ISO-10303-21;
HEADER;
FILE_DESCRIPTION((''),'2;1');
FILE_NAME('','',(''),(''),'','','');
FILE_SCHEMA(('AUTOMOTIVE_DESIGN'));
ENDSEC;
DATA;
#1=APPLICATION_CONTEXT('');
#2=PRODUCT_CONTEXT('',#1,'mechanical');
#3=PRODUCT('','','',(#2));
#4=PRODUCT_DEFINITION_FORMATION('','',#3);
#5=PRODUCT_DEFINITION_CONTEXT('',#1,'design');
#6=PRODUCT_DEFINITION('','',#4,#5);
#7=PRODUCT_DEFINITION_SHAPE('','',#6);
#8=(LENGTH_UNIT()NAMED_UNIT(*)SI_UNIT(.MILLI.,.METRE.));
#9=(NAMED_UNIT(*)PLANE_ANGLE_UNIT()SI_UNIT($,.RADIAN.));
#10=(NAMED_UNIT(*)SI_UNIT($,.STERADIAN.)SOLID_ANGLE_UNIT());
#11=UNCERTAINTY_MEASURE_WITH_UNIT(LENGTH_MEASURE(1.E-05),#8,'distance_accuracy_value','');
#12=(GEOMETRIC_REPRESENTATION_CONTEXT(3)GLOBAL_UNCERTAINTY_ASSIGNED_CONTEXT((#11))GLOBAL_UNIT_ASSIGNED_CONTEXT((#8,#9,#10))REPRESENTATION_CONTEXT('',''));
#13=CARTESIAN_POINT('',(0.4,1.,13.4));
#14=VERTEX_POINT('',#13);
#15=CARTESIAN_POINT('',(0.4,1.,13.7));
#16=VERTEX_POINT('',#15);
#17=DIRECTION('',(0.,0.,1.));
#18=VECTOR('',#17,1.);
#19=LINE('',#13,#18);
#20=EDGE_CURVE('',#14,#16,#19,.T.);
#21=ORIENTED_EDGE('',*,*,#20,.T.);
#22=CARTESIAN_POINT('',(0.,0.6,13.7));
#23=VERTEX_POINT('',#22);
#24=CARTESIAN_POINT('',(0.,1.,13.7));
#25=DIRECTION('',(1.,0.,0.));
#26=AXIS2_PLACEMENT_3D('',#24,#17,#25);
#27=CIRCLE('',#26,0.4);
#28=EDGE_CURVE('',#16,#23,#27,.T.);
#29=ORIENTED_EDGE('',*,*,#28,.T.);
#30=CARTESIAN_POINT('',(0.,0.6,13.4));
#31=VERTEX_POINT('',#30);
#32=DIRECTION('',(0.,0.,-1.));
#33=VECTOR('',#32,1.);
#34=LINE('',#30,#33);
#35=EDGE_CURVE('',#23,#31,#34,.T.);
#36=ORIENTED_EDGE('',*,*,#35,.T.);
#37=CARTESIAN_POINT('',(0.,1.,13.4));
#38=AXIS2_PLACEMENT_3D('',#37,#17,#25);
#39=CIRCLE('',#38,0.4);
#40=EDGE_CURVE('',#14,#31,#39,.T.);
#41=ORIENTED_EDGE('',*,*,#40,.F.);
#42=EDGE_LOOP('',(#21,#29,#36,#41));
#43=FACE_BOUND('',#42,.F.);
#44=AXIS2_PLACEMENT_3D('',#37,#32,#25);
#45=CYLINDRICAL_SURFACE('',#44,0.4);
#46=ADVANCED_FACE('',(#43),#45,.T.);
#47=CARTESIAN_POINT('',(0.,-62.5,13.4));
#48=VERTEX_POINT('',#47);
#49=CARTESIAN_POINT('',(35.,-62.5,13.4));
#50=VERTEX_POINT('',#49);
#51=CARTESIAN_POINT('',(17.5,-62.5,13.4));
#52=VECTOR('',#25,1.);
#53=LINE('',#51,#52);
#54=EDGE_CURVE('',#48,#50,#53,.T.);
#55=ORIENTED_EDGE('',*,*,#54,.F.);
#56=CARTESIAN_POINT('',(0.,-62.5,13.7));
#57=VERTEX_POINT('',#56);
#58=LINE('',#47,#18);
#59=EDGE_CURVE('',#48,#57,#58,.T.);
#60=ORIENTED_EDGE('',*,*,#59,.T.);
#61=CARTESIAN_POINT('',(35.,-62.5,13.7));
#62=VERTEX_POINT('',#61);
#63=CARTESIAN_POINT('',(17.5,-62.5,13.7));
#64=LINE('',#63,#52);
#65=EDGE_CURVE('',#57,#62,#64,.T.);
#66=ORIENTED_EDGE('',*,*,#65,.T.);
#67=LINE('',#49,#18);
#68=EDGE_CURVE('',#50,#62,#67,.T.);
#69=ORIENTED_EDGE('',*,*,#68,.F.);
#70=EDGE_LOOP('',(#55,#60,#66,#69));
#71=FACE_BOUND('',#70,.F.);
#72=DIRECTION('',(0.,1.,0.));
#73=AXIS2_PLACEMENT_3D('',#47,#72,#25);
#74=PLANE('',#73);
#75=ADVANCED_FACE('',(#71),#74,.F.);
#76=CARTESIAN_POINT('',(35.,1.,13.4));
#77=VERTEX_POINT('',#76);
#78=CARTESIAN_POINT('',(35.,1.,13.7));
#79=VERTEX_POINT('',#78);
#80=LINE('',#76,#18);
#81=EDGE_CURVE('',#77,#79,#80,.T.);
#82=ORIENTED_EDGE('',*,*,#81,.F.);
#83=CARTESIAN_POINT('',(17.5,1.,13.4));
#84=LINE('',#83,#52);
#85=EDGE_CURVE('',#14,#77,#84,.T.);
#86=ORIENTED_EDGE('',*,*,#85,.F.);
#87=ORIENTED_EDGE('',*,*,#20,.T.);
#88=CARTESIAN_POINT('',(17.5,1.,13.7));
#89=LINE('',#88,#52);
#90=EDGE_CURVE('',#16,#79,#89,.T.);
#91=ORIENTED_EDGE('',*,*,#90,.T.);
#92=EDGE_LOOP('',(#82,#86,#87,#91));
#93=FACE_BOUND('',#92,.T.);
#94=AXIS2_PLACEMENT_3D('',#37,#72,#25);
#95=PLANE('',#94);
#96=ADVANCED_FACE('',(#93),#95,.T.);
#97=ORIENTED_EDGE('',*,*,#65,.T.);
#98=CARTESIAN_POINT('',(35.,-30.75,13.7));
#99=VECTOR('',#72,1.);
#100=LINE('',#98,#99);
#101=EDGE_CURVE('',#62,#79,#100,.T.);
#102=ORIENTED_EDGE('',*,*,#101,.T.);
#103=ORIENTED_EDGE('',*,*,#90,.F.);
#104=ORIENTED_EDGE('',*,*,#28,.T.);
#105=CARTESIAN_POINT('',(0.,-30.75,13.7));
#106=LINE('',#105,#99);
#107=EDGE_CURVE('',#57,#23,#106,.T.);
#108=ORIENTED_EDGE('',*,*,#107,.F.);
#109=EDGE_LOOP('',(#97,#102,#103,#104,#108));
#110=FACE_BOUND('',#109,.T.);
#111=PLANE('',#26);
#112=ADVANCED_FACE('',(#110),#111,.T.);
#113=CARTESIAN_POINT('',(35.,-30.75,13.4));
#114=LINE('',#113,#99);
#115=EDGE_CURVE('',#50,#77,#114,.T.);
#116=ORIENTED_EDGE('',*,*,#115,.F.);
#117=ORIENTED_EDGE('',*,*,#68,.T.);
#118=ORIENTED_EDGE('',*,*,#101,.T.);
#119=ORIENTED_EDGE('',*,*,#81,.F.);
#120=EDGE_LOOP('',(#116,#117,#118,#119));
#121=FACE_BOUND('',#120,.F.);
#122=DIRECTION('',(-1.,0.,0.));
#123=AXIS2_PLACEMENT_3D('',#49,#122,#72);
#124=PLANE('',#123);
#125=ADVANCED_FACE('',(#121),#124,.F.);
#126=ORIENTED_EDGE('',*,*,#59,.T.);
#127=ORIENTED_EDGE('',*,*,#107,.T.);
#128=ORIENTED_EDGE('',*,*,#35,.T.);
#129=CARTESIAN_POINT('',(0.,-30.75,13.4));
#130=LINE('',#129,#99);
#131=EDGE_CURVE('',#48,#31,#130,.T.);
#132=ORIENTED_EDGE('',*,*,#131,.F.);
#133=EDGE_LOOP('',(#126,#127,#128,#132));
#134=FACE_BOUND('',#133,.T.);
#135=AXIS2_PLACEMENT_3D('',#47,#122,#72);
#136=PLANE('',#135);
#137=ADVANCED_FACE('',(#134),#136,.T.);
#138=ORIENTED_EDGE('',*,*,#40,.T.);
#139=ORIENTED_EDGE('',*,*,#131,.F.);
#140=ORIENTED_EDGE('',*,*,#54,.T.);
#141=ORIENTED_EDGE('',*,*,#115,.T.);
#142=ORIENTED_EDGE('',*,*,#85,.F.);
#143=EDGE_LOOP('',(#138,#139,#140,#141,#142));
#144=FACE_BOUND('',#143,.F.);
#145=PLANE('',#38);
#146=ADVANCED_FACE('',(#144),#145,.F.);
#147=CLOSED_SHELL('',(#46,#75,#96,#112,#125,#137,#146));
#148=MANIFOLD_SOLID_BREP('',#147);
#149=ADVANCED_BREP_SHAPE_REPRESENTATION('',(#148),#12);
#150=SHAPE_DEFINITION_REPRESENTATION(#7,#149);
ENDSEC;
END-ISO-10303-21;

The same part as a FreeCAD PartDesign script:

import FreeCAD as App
import Part
import Sketcher
Q = App.Units.Quantity


def add_polygon(sketch, points):
    """Adds a closed chain of lines whose ends are joined by coincident constraints."""
    first, n = sketch.GeometryCount, len(points)
    for a, b in zip(points, points[1:] + points[:1]):
        sketch.addGeometry(Part.LineSegment(App.Vector(*a, 0), App.Vector(*b, 0)), False)
    for i in range(n):
        sketch.addConstraint(Sketcher.Constraint("Coincident", first + i, 2, first + (i + 1) % n, 1))

doc = App.newDocument("Part")
body = doc.addObject("PartDesign::Body", "Body")

# Sketch on XY plane
sketch1 = doc.addObject("Sketcher::SketchObject", "Sketch")
body.addObject(sketch1)
sketch1.AttachmentSupport = (doc.XY_Plane, [""])
sketch1.MapMode = "FlatFace"
sketch1.AttachmentOffset = App.Placement(App.Vector(0, 0, 11.4), App.Rotation())
sketch1.addGeometry(Part.Circle(App.Vector(0, 1, 0), App.Vector(0, 0, 1), 0.4), False)
sketch1.addConstraint([
    Sketcher.Constraint("PointOnObject", 0, 3, -2),
    Sketcher.Constraint("Diameter", 0, Q("0.8 mm")),
    Sketcher.Constraint("DistanceY", -1, 1, 0, 3, Q("1 mm")),
])
pad1 = doc.addObject("PartDesign::Pad", "Pad")
body.addObject(pad1)
pad1.Profile = sketch1
pad1.Length = 0.3
body2 = doc.addObject("PartDesign::Body", "Body001")

# Sketch on XY plane
sketch2 = doc.addObject("Sketcher::SketchObject", "Sketch001")
body2.addObject(sketch2)
sketch2.AttachmentSupport = (doc.getObject("XY_Plane001"), [""])
sketch2.MapMode = "FlatFace"
sketch2.AttachmentOffset = App.Placement(App.Vector(0, 0, 11.4), App.Rotation())
add_polygon(sketch2, [(0, 1), (0, -62.5), (35, -62.5), (35, 1)])  # lines 0-3
sketch2.addConstraint([
    Sketcher.Constraint("Vertical", 0),
    Sketcher.Constraint("Horizontal", 1),
    Sketcher.Constraint("Vertical", 2),
    Sketcher.Constraint("Horizontal", 3),
    Sketcher.Constraint("PointOnObject", 0, 2, -2),
    Sketcher.Constraint("DistanceX", 1, 1, 1, 2, Q("35 mm")),
    Sketcher.Constraint("DistanceY", 0, 2, 0, 1, Q("63.5 mm")),
    Sketcher.Constraint("DistanceY", -1, 1, 2, 2, Q("1 mm")),
])
pad2 = doc.addObject("PartDesign::Pad", "Pad001")
body2.addObject(pad2)
pad2.Profile = sketch2
pad2.Length = 0.3
doc.recompute()

boolean = doc.addObject("PartDesign::Boolean", "Boolean")
body2.addObject(boolean)
boolean.Type = "Fuse"
boolean.addObjects([body])
body3 = doc.addObject("PartDesign::Body", "Body002")
doc.recompute()

body2.Placement = App.Placement(App.Vector(0, 0, 2), App.Rotation(App.Vector(0, 0, 1), 0))
boolean2 = doc.addObject("PartDesign::Boolean", "Boolean001")
body3.addObject(boolean2)
boolean2.Type = "Fuse"
boolean2.addObjects([body2])

doc.recompute()
